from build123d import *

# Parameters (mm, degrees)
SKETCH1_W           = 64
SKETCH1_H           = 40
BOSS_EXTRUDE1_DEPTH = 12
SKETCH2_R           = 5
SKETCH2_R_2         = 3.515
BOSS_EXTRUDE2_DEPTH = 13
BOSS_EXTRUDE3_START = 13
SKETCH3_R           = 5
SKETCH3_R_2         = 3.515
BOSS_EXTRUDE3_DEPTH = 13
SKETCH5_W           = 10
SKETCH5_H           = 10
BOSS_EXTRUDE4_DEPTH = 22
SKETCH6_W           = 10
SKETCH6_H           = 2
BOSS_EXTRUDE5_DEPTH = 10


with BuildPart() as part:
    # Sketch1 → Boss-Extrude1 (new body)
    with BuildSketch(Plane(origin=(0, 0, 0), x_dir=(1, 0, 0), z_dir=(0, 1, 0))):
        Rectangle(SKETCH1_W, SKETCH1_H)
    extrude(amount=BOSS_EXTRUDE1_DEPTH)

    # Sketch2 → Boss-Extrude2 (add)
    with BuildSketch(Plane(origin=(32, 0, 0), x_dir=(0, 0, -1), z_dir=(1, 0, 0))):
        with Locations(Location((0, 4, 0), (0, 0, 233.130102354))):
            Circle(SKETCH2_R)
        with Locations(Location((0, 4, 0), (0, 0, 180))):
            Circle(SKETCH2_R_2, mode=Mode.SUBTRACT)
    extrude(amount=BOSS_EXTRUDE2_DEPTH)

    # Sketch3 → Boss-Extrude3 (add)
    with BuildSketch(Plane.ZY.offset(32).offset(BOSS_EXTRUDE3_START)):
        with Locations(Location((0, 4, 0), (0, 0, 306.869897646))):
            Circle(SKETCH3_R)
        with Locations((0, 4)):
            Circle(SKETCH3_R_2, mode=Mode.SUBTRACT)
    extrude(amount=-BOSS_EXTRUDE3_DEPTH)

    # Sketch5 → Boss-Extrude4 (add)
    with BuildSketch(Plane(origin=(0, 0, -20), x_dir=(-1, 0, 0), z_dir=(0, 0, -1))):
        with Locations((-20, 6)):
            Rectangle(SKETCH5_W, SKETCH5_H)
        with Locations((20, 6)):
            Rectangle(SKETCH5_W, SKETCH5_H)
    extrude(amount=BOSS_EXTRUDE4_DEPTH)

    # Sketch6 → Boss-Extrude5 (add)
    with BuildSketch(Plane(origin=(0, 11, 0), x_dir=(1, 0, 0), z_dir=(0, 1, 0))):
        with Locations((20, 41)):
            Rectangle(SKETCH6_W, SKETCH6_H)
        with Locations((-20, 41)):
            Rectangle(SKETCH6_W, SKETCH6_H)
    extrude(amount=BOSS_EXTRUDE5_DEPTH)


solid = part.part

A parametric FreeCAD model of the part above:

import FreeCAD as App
import Part
import Sketcher

V = App.Vector


def add_polygon(sketch, points):
    """Adds a closed chain of lines whose ends are joined by coincident constraints."""
    first, n = sketch.GeometryCount, len(points)
    for a, b in zip(points, points[1:] + points[:1]):
        sketch.addGeometry(Part.LineSegment(App.Vector(*a, 0), App.Vector(*b, 0)), False)
    for i in range(n):
        sketch.addConstraint(Sketcher.Constraint("Coincident", first + i, 2, first + (i + 1) % n, 1))

doc = App.newDocument("Part")
body = doc.addObject("PartDesign::Body", "Body")

sketch1 = body.newObject("Sketcher::SketchObject", "Sketch")
sketch1.AttachmentSupport = (doc.getObject("XZ_Plane"), [""])
sketch1.MapMode = "FlatFace"
add_polygon(sketch1, [(-32, -20), (-32, 20), (32, 20), (32, -20)])
sketch1.addConstraint([
    Sketcher.Constraint("Vertical", 0),
    Sketcher.Constraint("Horizontal", 1),
    Sketcher.Constraint("Vertical", 2),
    Sketcher.Constraint("Horizontal", 3),
    Sketcher.Constraint("Symmetric", 0, 2, 2, 2, -1, 1),
    Sketcher.Constraint("DistanceX", 1, 1, 1, 2, 64.0),
    Sketcher.Constraint("DistanceY", 0, 1, 0, 2, 40.0),
])
pad1 = body.newObject("PartDesign::Pad", "Pad")
pad1.Profile = sketch1
pad1.Length = 12
pad1.Reversed = True

sketch2 = body.newObject("Sketcher::SketchObject", "Sketch001")
sketch2.AttachmentSupport = (doc.getObject("YZ_Plane"), [""])
sketch2.MapMode = "FlatFace"
sketch2.AttachmentOffset = App.Placement(V(0, 0, 32), App.Rotation())
sketch2.addGeometry([
    Part.Circle(V(4, 0, 0), V(0, 0, 1), 5),
    Part.Circle(V(4, 0, 0), V(0, 0, 1), 3.5),
], False)
sketch2.addConstraint([
    Sketcher.Constraint("Coincident", 1, 3, 0, 3),
    Sketcher.Constraint("PointOnObject", 0, 3, -1),
    Sketcher.Constraint("Diameter", 0, 10.0),
    Sketcher.Constraint("Diameter", 1, 7.03),
    Sketcher.Constraint("DistanceX", -1, 1, 0, 3, 4.0),
])
pad2 = body.newObject("PartDesign::Pad", "Pad001")
pad2.Profile = sketch2
pad2.Length = 13

sketch3 = body.newObject("Sketcher::SketchObject", "Sketch002")
sketch3.AttachmentSupport = (doc.getObject("YZ_Plane"), [""])
sketch3.MapMode = "FlatFace"
sketch3.AttachmentOffset = App.Placement(V(0, 0, -45), App.Rotation())
sketch3.addGeometry([
    Part.Circle(V(4, 0, 0), V(0, 0, 1), 5),
    Part.Circle(V(4, 0, 0), V(0, 0, 1), 3.5),
], False)
sketch3.addConstraint([
    Sketcher.Constraint("Coincident", 1, 3, 0, 3),
    Sketcher.Constraint("PointOnObject", 0, 3, -1),
    Sketcher.Constraint("Diameter", 0, 10.0),
    Sketcher.Constraint("Diameter", 1, 7.03),
    Sketcher.Constraint("DistanceX", -1, 1, 0, 3, 4.0),
])
pad3 = body.newObject("PartDesign::Pad", "Pad002")
pad3.Profile = sketch3
pad3.Length = 13

sketch4 = body.newObject("Sketcher::SketchObject", "Sketch003")
sketch4.AttachmentSupport = (doc.getObject("XY_Plane"), [""])
sketch4.MapMode = "FlatFace"
sketch4.AttachmentOffset = App.Placement(V(0, 0, -20), App.Rotation())
add_polygon(sketch4, [(25, 11), (25, 1), (15, 1), (15, 11)])
add_polygon(sketch4, [(-15, 11), (-15, 1), (-25, 1), (-25, 11)])
sketch4.addConstraint([
    Sketcher.Constraint("Vertical", 0),
    Sketcher.Constraint("Horizontal", 1),
    Sketcher.Constraint("Vertical", 2),
    Sketcher.Constraint("Horizontal", 3),
    Sketcher.Constraint("Vertical", 4),
    Sketcher.Constraint("Horizontal", 5),
    Sketcher.Constraint("Vertical", 6),
    Sketcher.Constraint("Horizontal", 7),
    Sketcher.Constraint("Symmetric", 1, 2, 4, 2, -2),
    Sketcher.Constraint("Symmetric", 3, 2, 6, 2, -2),
    Sketcher.Constraint("Equal", 7, 0),
    Sketcher.Constraint("DistanceX", 1, 2, 1, 1, 10.0),
    Sketcher.Constraint("DistanceX", -1, 1, 0, 2, 25.0),
    Sketcher.Constraint("DistanceY", -1, 1, 0, 2, 1.0),
])
pad4 = body.newObject("PartDesign::Pad", "Pad003")
pad4.Profile = sketch4
pad4.Length = 22
pad4.Reversed = True

sketch5 = body.newObject("Sketcher::SketchObject", "Sketch004")
sketch5.AttachmentSupport = (doc.getObject("XZ_Plane"), [""])
sketch5.MapMode = "FlatFace"
sketch5.AttachmentOffset = App.Placement(V(0, 0, -11), App.Rotation())
add_polygon(sketch5, [(15, -42), (15, -40), (25, -40), (25, -42)])
add_polygon(sketch5, [(-25, -42), (-25, -40), (-15, -40), (-15, -42)])
sketch5.addConstraint([
    Sketcher.Constraint("Vertical", 0),
    Sketcher.Constraint("Horizontal", 1),
    Sketcher.Constraint("Vertical", 2),
    Sketcher.Constraint("Horizontal", 3),
    Sketcher.Constraint("Vertical", 4),
    Sketcher.Constraint("Horizontal", 5),
    Sketcher.Constraint("Vertical", 6),
    Sketcher.Constraint("Horizontal", 7),
    Sketcher.Constraint("Symmetric", 1, 2, 4, 2, -2),
    Sketcher.Constraint("Symmetric", 3, 2, 6, 2, -2),
    Sketcher.Constraint("DistanceX", 1, 1, 1, 2, 10.0),
    Sketcher.Constraint("DistanceY", 0, 1, 0, 2, 2.0),
    Sketcher.Constraint("DistanceX", -1, 1, 0, 2, 15.0),
    Sketcher.Constraint("DistanceY", 0, 2, -1, 1, 40.0),
])
pad5 = body.newObject("PartDesign::Pad", "Pad004")
pad5.Profile = sketch5
pad5.Length = 10
pad5.Reversed = True

doc.recompute()
